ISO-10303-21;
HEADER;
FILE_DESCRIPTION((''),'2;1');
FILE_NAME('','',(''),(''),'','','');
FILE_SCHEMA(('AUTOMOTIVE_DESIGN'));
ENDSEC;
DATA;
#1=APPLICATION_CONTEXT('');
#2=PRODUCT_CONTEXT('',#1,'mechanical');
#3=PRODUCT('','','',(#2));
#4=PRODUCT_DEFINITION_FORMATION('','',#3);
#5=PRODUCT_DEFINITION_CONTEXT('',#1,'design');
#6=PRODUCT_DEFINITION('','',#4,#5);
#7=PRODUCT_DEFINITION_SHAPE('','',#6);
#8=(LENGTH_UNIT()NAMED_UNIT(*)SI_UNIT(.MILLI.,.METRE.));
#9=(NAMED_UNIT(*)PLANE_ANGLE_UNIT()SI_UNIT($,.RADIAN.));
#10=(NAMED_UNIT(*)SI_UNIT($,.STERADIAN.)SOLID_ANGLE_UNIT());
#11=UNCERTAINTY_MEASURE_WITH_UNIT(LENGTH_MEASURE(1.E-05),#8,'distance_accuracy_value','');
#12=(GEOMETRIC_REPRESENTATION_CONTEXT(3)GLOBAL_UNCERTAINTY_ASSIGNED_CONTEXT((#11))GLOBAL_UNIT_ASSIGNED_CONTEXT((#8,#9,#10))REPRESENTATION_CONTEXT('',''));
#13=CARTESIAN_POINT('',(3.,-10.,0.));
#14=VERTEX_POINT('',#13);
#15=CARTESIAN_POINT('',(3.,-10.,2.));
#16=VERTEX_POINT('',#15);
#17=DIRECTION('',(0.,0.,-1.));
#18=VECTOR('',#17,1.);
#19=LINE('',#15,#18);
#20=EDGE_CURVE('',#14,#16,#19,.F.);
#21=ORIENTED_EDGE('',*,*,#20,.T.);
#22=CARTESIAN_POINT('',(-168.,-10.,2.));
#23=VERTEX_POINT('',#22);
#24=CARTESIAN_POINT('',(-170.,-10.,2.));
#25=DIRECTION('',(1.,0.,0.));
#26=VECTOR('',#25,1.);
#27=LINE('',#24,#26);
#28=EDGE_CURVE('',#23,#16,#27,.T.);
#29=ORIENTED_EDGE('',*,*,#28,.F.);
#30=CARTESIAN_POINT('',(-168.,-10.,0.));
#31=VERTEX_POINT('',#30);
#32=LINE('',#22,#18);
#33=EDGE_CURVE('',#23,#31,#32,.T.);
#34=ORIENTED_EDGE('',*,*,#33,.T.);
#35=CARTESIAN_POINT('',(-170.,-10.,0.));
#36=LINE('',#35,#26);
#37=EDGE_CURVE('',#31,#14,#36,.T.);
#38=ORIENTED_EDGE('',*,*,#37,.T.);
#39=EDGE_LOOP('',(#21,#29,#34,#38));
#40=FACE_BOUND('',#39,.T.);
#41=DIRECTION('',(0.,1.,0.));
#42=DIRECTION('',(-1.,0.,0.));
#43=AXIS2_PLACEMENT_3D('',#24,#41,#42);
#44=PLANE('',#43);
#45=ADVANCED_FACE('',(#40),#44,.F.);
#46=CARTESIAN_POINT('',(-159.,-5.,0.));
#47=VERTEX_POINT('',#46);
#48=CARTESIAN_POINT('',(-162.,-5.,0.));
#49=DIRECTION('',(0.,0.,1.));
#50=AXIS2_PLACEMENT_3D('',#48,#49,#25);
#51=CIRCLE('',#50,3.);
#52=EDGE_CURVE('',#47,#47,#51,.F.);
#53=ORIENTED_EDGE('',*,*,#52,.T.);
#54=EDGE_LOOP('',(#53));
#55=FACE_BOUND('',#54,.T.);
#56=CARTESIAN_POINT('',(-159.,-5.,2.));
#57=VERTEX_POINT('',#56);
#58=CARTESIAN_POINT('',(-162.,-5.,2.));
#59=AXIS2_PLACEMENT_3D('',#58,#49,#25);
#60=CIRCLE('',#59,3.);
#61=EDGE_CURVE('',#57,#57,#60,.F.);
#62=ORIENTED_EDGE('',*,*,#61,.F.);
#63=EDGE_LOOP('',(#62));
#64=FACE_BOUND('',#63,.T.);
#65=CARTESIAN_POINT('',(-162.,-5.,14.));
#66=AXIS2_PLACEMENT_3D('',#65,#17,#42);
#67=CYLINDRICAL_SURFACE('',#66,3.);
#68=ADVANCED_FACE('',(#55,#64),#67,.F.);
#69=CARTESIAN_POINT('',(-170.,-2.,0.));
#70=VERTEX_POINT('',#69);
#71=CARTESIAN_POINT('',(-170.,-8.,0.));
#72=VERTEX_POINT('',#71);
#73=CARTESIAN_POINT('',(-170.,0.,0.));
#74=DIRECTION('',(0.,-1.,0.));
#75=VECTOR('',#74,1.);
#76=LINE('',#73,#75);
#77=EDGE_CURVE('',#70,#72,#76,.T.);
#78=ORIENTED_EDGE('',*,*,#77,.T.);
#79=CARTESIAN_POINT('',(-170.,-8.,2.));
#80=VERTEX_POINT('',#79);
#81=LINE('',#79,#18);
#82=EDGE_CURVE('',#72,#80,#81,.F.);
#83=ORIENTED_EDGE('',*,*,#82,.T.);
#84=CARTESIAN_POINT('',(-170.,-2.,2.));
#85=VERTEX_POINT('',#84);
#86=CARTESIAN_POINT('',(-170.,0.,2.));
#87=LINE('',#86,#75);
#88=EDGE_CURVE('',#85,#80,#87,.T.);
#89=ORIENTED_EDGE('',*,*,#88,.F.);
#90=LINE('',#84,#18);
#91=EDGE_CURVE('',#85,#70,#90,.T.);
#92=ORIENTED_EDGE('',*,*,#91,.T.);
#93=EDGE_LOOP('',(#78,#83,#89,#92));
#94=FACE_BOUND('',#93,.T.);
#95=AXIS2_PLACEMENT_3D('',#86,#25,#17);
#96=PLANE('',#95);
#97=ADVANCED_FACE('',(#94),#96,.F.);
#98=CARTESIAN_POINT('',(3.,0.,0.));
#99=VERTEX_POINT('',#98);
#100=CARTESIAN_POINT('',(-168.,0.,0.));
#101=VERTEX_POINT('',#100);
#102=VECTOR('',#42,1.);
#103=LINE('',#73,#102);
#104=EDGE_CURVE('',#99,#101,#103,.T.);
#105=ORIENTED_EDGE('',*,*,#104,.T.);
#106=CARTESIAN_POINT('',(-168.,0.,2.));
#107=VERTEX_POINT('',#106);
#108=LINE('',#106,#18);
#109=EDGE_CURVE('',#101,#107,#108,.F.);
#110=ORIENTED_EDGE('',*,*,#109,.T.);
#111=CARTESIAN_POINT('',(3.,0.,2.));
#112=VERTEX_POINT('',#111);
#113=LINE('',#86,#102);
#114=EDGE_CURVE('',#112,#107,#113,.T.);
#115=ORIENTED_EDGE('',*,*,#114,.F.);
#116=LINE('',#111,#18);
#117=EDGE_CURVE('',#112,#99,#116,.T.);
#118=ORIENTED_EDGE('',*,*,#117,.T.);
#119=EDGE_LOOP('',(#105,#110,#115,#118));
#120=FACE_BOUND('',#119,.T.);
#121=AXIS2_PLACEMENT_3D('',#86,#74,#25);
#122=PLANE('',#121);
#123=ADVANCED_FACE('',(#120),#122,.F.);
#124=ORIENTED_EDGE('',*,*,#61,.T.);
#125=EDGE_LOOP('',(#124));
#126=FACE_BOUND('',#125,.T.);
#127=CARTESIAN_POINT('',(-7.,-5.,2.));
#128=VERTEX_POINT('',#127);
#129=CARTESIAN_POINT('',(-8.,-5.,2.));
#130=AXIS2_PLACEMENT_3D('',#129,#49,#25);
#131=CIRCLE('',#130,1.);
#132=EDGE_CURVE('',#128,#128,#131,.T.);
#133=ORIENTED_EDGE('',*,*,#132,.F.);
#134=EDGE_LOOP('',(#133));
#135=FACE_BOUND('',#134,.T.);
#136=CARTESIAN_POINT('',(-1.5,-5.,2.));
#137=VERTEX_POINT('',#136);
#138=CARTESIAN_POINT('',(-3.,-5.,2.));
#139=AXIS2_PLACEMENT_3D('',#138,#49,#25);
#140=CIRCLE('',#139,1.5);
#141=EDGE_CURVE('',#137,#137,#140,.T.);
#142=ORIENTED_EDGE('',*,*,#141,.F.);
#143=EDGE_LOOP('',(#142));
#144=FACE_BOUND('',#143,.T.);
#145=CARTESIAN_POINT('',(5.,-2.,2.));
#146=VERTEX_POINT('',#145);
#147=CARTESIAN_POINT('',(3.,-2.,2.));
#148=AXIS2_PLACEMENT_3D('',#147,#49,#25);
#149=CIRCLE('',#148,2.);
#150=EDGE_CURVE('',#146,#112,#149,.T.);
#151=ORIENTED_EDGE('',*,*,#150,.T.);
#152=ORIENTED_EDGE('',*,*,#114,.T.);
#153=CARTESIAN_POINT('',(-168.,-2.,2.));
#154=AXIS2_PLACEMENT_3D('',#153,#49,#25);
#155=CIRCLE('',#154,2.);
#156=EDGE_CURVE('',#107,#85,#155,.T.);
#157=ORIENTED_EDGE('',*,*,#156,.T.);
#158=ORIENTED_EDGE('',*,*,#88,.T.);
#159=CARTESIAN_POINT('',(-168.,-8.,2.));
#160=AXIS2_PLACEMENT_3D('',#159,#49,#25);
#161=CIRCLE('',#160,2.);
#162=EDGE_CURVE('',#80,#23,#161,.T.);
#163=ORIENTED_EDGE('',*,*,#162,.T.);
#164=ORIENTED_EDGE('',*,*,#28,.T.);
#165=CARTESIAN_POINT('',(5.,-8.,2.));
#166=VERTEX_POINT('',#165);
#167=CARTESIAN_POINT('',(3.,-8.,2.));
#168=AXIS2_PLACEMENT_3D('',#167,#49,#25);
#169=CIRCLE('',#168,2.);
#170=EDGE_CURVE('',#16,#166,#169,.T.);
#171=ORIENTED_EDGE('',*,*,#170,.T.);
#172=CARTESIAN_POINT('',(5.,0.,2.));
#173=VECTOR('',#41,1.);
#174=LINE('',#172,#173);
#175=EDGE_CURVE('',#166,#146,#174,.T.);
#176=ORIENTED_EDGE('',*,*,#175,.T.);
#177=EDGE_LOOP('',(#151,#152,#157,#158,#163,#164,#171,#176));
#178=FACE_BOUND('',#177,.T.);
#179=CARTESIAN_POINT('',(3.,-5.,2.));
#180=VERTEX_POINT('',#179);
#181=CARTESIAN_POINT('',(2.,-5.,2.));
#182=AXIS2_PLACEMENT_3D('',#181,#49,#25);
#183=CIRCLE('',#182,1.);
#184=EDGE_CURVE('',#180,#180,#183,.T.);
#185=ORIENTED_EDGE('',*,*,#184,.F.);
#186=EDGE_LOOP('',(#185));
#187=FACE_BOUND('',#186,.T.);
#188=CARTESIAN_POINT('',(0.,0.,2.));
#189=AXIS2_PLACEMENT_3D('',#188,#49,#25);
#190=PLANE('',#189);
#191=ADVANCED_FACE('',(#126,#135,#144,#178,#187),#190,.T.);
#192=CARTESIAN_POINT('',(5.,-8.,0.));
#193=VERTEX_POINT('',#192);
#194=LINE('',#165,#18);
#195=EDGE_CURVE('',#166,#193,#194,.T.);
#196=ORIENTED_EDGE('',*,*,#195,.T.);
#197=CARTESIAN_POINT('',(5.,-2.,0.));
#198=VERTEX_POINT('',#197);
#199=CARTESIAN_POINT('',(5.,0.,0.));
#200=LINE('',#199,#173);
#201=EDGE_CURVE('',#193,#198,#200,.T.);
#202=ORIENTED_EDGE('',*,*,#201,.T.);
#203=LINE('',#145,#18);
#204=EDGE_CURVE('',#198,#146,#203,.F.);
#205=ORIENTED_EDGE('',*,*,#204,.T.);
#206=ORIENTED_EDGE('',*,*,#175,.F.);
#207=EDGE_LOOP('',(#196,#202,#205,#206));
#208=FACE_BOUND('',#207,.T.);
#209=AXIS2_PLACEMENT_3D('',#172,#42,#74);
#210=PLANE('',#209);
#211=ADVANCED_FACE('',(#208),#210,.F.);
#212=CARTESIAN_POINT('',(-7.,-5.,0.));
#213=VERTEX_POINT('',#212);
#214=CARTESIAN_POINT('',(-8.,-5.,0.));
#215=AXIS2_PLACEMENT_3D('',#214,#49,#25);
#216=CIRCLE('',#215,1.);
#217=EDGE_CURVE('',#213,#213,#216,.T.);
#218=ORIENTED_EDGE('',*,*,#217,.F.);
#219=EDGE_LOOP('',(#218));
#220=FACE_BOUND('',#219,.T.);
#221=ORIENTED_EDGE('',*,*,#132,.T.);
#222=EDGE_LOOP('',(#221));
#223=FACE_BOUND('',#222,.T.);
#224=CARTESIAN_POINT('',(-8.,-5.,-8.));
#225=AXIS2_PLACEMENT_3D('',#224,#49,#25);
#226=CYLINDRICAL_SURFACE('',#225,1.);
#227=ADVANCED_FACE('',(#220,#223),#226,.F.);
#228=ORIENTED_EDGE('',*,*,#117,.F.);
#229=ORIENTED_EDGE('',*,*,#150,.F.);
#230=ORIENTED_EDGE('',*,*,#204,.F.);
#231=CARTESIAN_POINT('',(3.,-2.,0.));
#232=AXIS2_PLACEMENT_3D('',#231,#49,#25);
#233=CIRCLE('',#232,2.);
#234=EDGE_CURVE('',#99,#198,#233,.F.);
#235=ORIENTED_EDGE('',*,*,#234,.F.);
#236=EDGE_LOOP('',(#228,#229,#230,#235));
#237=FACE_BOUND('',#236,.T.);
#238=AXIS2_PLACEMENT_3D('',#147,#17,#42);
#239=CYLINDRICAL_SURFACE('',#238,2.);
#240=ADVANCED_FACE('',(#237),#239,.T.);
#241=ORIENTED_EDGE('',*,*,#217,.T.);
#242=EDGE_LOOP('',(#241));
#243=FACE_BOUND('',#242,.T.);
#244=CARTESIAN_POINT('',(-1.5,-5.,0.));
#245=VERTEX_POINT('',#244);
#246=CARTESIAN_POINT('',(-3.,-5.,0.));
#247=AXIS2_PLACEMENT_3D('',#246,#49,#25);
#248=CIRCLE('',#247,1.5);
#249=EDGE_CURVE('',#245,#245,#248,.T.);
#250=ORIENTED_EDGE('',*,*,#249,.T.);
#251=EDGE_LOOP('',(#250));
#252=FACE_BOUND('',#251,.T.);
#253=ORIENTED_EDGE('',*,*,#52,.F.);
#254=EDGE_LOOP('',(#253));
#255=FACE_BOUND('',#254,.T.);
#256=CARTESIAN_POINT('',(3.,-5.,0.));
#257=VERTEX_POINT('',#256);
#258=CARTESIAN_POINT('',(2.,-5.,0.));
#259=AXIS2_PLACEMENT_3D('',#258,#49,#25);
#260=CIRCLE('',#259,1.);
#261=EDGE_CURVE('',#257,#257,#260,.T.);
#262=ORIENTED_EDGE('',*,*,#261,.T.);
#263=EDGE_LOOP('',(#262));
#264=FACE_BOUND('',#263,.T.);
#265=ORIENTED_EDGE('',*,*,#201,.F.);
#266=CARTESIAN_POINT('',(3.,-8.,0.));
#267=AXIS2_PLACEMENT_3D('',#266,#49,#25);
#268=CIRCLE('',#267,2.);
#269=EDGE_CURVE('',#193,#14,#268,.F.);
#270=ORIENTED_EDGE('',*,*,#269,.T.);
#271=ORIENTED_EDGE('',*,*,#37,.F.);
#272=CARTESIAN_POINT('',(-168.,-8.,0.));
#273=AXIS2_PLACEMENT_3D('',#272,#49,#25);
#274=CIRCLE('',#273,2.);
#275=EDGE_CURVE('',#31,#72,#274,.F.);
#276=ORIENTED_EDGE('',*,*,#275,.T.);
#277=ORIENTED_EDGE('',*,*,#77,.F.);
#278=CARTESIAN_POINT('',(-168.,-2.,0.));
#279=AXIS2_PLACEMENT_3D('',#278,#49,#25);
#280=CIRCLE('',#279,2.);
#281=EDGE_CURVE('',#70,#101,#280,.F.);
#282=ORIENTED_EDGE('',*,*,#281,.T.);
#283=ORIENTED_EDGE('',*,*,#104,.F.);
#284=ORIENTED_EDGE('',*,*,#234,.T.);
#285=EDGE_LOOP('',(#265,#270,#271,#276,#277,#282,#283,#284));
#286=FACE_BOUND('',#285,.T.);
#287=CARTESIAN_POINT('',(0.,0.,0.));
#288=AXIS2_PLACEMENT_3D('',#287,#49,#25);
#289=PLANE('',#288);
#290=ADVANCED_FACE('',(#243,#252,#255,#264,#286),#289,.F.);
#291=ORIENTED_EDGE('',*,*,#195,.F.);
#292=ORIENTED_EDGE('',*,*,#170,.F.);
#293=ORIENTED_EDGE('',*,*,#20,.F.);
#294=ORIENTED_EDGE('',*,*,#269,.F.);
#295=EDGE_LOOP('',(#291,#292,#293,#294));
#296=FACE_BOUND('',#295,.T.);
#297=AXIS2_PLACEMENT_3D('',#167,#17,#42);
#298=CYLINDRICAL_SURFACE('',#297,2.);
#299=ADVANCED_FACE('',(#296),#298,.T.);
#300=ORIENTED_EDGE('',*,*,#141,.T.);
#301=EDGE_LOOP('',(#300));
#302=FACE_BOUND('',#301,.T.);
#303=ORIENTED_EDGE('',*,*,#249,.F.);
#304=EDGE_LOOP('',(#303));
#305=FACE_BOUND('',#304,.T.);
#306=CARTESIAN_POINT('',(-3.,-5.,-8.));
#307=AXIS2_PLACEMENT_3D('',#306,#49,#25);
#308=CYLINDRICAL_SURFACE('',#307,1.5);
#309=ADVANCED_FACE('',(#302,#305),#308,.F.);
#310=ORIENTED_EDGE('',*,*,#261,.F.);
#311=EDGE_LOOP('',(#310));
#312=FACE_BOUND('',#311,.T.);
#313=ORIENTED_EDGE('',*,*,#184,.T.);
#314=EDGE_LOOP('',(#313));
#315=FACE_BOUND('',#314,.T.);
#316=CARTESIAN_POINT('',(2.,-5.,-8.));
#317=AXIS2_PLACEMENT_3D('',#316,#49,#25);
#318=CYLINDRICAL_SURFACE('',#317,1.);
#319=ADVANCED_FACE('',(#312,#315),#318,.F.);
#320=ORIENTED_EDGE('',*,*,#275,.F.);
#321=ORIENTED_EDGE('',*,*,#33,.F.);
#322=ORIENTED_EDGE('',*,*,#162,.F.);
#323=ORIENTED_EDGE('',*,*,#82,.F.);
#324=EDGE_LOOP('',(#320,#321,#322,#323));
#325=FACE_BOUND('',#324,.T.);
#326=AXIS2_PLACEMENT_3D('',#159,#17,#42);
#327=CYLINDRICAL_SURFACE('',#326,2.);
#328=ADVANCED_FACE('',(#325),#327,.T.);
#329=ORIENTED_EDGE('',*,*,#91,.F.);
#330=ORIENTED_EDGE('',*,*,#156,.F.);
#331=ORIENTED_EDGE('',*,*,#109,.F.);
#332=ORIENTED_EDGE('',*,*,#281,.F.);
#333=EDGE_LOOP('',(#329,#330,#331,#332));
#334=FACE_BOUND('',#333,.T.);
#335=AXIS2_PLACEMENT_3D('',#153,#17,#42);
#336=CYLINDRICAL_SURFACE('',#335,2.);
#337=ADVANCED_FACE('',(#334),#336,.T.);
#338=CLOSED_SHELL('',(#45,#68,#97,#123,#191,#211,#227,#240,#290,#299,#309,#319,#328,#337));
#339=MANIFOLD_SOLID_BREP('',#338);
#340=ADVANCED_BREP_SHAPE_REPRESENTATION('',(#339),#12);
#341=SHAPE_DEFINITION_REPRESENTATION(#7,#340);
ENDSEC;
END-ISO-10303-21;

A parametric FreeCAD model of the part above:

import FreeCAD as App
import Part
import Sketcher

V = App.Vector


def edges_at(feature, points):
    """Names of the edges that pass closest to the given points."""
    edges = feature.Shape.Edges
    near = lambda p: min(range(len(edges)), key=lambda i: edges[i].distToShape(Part.Vertex(*p))[0])
    return sorted({f"Edge{near(p) + 1}" for p in points})

doc = App.newDocument("Part")
body = doc.addObject("PartDesign::Body", "Body")

# Sketch on XY plane
sketch1 = body.newObject("Sketcher::SketchObject", "Sketch")
sketch1.AttachmentSupport = (doc.getObject("XY_Plane"), [""])
sketch1.MapMode = "FlatFace"
sketch1.addGeometry(Part.LineSegment(V(-170, 0, 0), V(-170, -10, 0)), False)
sketch1.addGeometry(Part.LineSegment(V(-170, -10, 0), V(5, -10, 0)), False)
sketch1.addGeometry(Part.LineSegment(V(5, -10, 0), V(5, 0, 0)), False)
sketch1.addGeometry(Part.LineSegment(V(5, 0, 0), V(-170, 0, 0)), False)
sketch1.addConstraint(Sketcher.Constraint("Coincident", 0, 2, 1, 1))
sketch1.addConstraint(Sketcher.Constraint("Coincident", 1, 2, 2, 1))
sketch1.addConstraint(Sketcher.Constraint("Coincident", 2, 2, 3, 1))
sketch1.addConstraint(Sketcher.Constraint("Coincident", 3, 2, 0, 1))
sketch1.addConstraint(Sketcher.Constraint("Vertical", 0))
sketch1.addConstraint(Sketcher.Constraint("Horizontal", 1))
sketch1.addConstraint(Sketcher.Constraint("Vertical", 2))
sketch1.addConstraint(Sketcher.Constraint("Horizontal", 3))
sketch1.addConstraint(Sketcher.Constraint("PointOnObject", 2, 2, -1))
sketch1.addConstraint(Sketcher.Constraint("DistanceX", 1, 1, 1, 2, 175.0))
sketch1.addConstraint(Sketcher.Constraint("DistanceY", 0, 2, 0, 1, 10.0))
sketch1.addConstraint(Sketcher.Constraint("DistanceX", 0, 2, -1, 1, 170.0))
pad1 = body.newObject("PartDesign::Pad", "Pad")
pad1.Profile = sketch1
pad1.Length = 2

# Sketch on XY plane
sketch2 = body.newObject("Sketcher::SketchObject", "Sketch001")
sketch2.AttachmentSupport = (doc.getObject("XY_Plane"), [""])
sketch2.MapMode = "FlatFace"
sketch2.AttachmentOffset = App.Placement(V(0, 0, 2), App.Rotation())
sketch2.addGeometry(Part.Circle(V(-162, -5, 0), V(0, 0, 1), 3), False)
sketch2.addConstraint(Sketcher.Constraint("Diameter", 0, 6.0))
sketch2.addConstraint(Sketcher.Constraint("DistanceX", 0, 3, -1, 1, 162.0))
sketch2.addConstraint(Sketcher.Constraint("DistanceY", 0, 3, -1, 1, 5.0))
pocket1 = body.newObject("PartDesign::Pocket", "Pocket")
pocket1.Profile = sketch2
pocket1.Type = "ThroughAll"
pocket1.Midplane = True

# Sketch on XY plane
sketch3 = body.newObject("Sketcher::SketchObject", "Sketch002")
sketch3.AttachmentSupport = (doc.getObject("XY_Plane"), [""])
sketch3.MapMode = "FlatFace"
sketch3.AttachmentOffset = App.Placement(V(0, 0, 2), App.Rotation())
sketch3.addGeometry(Part.Circle(V(-3, -5, 0), V(0, 0, 1), 1.5), False)
sketch3.addGeometry(Part.Circle(V(-8, -5, 0), V(0, 0, 1), 1), False)
sketch3.addGeometry(Part.Circle(V(2, -5, 0), V(0, 0, 1), 1), False)
sketch3.addConstraint(Sketcher.Constraint("Equal", 1, 2))
sketch3.addConstraint(Sketcher.Constraint("Horizontal", 0, 3, 1, 3))
sketch3.addConstraint(Sketcher.Constraint("Horizontal", 1, 3, 2, 3))
sketch3.addConstraint(Sketcher.Constraint("Diameter", 0, 3.0))
sketch3.addConstraint(Sketcher.Constraint("Diameter", 1, 2.0))
sketch3.addConstraint(Sketcher.Constraint("DistanceX", 0, 3, -1, 1, 3.0))
sketch3.addConstraint(Sketcher.Constraint("DistanceY", 0, 3, -1, 1, 5.0))
sketch3.addConstraint(Sketcher.Constraint("DistanceX", 1, 3, -1, 1, 8.0))
sketch3.addConstraint(Sketcher.Constraint("DistanceX", -1, 1, 2, 3, 2.0))
pocket2 = body.newObject("PartDesign::Pocket", "Pocket001")
pocket2.Profile = sketch3
pocket2.Length = 10
doc.recompute()

fillet = body.newObject("PartDesign::Fillet", "Fillet")
fillet.Base = (pocket2, edges_at(pocket2, [
    (-170, 0, 1),
    (5, 0, 1),
    (5, -10, 1),
    (-170, -10, 1),
]))
fillet.Radius = 2

doc.recompute()
